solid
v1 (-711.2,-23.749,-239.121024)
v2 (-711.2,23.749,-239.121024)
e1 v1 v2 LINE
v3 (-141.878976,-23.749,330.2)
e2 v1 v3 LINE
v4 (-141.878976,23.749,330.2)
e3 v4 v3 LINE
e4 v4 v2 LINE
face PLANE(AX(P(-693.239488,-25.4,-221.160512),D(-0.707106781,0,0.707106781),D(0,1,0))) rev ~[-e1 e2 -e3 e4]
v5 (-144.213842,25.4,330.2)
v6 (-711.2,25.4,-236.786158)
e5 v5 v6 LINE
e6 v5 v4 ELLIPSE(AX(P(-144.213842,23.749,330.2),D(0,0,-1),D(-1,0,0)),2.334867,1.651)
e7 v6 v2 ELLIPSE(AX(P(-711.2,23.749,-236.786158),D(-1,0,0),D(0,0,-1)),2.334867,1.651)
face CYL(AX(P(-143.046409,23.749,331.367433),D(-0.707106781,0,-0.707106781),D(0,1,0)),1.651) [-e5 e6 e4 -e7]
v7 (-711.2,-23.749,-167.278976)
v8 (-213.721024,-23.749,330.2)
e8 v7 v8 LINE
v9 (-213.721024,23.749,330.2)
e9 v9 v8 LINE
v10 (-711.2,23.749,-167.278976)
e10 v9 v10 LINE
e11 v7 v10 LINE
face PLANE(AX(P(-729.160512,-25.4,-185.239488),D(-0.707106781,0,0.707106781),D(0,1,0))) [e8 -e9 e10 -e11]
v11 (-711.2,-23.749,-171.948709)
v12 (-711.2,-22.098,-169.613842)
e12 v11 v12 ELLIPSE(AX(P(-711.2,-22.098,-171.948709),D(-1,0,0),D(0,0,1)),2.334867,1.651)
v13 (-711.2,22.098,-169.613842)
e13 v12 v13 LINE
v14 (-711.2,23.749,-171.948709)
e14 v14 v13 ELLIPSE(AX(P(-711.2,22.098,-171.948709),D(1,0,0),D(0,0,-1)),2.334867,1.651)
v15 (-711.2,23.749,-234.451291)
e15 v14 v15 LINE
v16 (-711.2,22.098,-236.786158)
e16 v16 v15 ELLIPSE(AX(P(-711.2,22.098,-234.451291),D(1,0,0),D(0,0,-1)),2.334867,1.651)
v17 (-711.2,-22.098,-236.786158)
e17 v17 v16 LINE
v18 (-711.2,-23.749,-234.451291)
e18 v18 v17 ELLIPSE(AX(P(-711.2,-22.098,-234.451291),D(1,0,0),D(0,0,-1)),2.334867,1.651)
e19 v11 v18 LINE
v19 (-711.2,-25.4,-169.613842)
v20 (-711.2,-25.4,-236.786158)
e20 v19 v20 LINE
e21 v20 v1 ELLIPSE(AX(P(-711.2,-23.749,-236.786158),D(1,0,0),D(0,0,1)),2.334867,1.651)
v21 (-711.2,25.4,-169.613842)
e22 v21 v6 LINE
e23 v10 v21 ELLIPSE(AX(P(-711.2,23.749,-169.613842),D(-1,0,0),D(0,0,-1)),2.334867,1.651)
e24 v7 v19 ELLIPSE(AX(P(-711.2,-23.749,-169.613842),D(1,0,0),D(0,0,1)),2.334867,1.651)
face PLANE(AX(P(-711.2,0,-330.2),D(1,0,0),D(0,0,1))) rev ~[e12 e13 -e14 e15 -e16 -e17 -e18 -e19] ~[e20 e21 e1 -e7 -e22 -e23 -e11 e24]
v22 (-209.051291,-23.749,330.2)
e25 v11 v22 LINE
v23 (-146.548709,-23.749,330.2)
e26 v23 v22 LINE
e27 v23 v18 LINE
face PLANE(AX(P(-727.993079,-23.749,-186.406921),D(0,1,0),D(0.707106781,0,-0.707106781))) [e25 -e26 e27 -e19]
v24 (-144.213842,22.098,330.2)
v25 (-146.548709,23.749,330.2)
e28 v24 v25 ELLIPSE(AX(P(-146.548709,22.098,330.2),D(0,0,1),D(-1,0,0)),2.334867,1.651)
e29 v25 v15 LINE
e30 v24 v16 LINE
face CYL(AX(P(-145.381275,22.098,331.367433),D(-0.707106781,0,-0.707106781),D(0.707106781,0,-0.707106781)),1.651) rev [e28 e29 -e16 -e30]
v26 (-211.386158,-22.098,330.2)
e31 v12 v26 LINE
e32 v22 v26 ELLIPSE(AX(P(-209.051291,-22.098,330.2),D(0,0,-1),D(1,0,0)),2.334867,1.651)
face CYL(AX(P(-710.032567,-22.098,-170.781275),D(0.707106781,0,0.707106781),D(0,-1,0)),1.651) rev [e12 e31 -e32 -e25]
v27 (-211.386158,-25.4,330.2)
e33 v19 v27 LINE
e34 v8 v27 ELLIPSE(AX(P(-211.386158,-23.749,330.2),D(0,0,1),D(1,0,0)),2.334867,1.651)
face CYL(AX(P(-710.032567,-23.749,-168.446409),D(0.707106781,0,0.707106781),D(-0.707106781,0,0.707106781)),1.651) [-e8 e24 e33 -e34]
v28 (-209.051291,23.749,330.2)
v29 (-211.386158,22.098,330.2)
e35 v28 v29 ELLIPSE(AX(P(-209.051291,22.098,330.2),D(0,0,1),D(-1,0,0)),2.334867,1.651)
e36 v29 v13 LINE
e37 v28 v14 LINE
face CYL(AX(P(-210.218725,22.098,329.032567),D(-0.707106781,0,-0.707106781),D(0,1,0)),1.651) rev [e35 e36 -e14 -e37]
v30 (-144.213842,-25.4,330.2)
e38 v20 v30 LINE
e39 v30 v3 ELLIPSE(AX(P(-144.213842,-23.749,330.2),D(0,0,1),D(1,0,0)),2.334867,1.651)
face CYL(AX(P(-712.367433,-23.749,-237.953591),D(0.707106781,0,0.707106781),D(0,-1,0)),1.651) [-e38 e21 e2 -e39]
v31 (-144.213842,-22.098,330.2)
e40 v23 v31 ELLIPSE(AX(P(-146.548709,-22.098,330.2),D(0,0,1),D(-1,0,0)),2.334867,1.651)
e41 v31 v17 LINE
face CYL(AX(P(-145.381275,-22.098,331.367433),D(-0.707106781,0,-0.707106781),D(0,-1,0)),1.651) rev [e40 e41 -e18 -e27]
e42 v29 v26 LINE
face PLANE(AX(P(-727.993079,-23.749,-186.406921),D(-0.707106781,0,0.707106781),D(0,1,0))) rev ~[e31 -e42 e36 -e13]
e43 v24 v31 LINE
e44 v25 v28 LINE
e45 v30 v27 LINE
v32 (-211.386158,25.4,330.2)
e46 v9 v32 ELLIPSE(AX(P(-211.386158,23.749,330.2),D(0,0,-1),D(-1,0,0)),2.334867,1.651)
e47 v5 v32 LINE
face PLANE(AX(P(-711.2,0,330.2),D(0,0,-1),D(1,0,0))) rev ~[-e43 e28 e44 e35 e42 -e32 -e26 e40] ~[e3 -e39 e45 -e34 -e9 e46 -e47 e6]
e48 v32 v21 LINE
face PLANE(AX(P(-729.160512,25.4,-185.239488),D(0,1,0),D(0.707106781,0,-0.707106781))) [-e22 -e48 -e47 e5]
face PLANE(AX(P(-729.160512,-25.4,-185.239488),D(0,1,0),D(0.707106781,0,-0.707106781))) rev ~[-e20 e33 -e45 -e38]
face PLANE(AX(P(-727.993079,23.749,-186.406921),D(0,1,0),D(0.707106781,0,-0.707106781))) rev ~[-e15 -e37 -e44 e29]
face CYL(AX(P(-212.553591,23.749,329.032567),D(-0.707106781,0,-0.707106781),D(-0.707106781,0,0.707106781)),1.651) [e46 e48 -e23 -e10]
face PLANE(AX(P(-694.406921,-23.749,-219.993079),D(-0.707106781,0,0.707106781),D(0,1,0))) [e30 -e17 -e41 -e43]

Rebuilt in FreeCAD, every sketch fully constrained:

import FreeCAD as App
import Part
import Sketcher
from FreeCAD import Vector
Q = App.Units.Quantity


def edges_at(feature, points):
    """Names of the edges that pass closest to the given points."""
    edges = feature.Shape.Edges
    near = lambda p: min(range(len(edges)), key=lambda i: edges[i].distToShape(Part.Vertex(*p))[0])
    return sorted({f"Edge{near(p) + 1}" for p in points})

doc = App.newDocument("Part")
body = doc.addObject("PartDesign::Body", "Body")

sketch1 = body.newObject("Sketcher::SketchObject", "Sketch")
sketch1.Placement = App.Placement(Vector(-457.2, 0, -457.2), App.Rotation(Vector(0.707106781, 0, -0.707106781), Vector(0, 0.999999999, 0), Vector(0.707106781, 0, 0.707106781), "ZXY"))
sketch1.addGeometry([
    Part.LineSegment(Vector(-385, 25, 0), Vector(-385, -25, 0)),
    Part.LineSegment(Vector(-385, -25, 0), Vector(-334, -25, 0)),
    Part.LineSegment(Vector(-334, -25, 0), Vector(-334, 25, 0)),
    Part.LineSegment(Vector(-334, 25, 0), Vector(-385, 25, 0)),
    Part.LineSegment(Vector(-335, -24, 0), Vector(-383, -24, 0)),
    Part.LineSegment(Vector(-383, -24, 0), Vector(-383, 24, 0)),
    Part.LineSegment(Vector(-383, 24, 0), Vector(-335, 24, 0)),
    Part.LineSegment(Vector(-335, 24, 0), Vector(-335, -24, 0)),
], False)
sketch1.addConstraint([
    Sketcher.Constraint("Coincident", 0, 2, 1, 1),
    Sketcher.Constraint("Coincident", 1, 2, 2, 1),
    Sketcher.Constraint("Coincident", 2, 2, 3, 1),
    Sketcher.Constraint("Coincident", 3, 2, 0, 1),
    Sketcher.Constraint("Coincident", 4, 2, 5, 1),
    Sketcher.Constraint("Coincident", 5, 2, 6, 1),
    Sketcher.Constraint("Coincident", 6, 2, 7, 1),
    Sketcher.Constraint("Coincident", 7, 2, 4, 1),
    Sketcher.Constraint("Vertical", 0),
    Sketcher.Constraint("Horizontal", 1),
    Sketcher.Constraint("Vertical", 2),
    Sketcher.Constraint("Horizontal", 3),
    Sketcher.Constraint("Horizontal", 4),
    Sketcher.Constraint("Vertical", 5),
    Sketcher.Constraint("Horizontal", 6),
    Sketcher.Constraint("Vertical", 7),
    Sketcher.Constraint("Equal", 3, 0),
    Sketcher.Constraint("Equal", 6, 5),
    Sketcher.Constraint("DistanceX", 1, 1, 1, 2, Q("2 in")),
    Sketcher.Constraint("DistanceY", 0, 2, -1, 1, Q("1 in")),
    Sketcher.Constraint("DistanceX", 4, 2, 4, 1, Q("1.87 in")),
    Sketcher.Constraint("DistanceY", 4, 2, -1, 1, Q("0.935 in")),
    Sketcher.Constraint("DistanceX", 0, 2, 4, 2, Q("0.065 in")),
    Sketcher.Constraint("DistanceX", 0, 2, -1, 1, Q("384.610245 mm")),
])
pad1 = body.newObject("PartDesign::Pad", "Pad")
pad1.Profile = sketch1
pad1.Type = "TwoLengths"
pad1.Length = Q("1 in")
pad1.Length2 = Q("31 in")
pad1.Reversed = True

sketch2 = body.newObject("Sketcher::SketchObject", "Sketch001")
sketch2.AttachmentSupport = (doc.getObject("XZ_Plane"), [""])
sketch2.MapMode = "FlatFace"
sketch2.addGeometry([
    Part.LineSegment(Vector(-762, 381, 0), Vector(-762, -381, 0)),
    Part.LineSegment(Vector(-762, -381, 0), Vector(762, -381, 0)),
    Part.LineSegment(Vector(762, -381, 0), Vector(762, 381, 0)),
    Part.LineSegment(Vector(762, 381, 0), Vector(-762, 381, 0)),
    Part.LineSegment(Vector(711, -330, 0), Vector(-711, -330, 0)),
    Part.LineSegment(Vector(-711, -330, 0), Vector(-711, 330, 0)),
    Part.LineSegment(Vector(-711, 330, 0), Vector(711, 330, 0)),
    Part.LineSegment(Vector(711, 330, 0), Vector(711, -330, 0)),
], False)
sketch2.addConstraint([
    Sketcher.Constraint("Coincident", 0, 2, 1, 1),
    Sketcher.Constraint("Coincident", 1, 2, 2, 1),
    Sketcher.Constraint("Coincident", 2, 2, 3, 1),
    Sketcher.Constraint("Coincident", 3, 2, 0, 1),
    Sketcher.Constraint("Coincident", 4, 2, 5, 1),
    Sketcher.Constraint("Coincident", 5, 2, 6, 1),
    Sketcher.Constraint("Coincident", 6, 2, 7, 1),
    Sketcher.Constraint("Coincident", 7, 2, 4, 1),
    Sketcher.Constraint("Vertical", 0),
    Sketcher.Constraint("Horizontal", 1),
    Sketcher.Constraint("Vertical", 2),
    Sketcher.Constraint("Horizontal", 3),
    Sketcher.Constraint("Horizontal", 4),
    Sketcher.Constraint("Vertical", 5),
    Sketcher.Constraint("Horizontal", 6),
    Sketcher.Constraint("Vertical", 7),
    Sketcher.Constraint("Symmetric", 0, 2, 2, 2, -1, 1),
    Sketcher.Constraint("Symmetric", 4, 2, 6, 2, -1, 1),
    Sketcher.Constraint("DistanceX", 1, 1, 1, 2, Q("60 in")),
    Sketcher.Constraint("DistanceX", 4, 2, 4, 1, Q("56 in")),
    Sketcher.Constraint("DistanceY", 0, 2, 0, 1, Q("30 in")),
    Sketcher.Constraint("DistanceY", 5, 1, 5, 2, Q("26 in")),
])
pocket1 = body.newObject("PartDesign::Pocket", "Pocket")
pocket1.Profile = sketch2
pocket1.Length = Q("5 in")
pocket1.Midplane = True
doc.recompute()

fillet = body.newObject("PartDesign::Fillet", "Fillet")
fillet.Base = (pocket1, edges_at(pocket1, [
    (-462.461, -25.4, 81.461),
    (-462.461, 25.4, 81.461),
    (-426.539, 25.4, 45.539),
    (-426.539, -25.4, 45.539),
]))
fillet.Radius = Q("0.065 in")
doc.recompute()

fillet2 = body.newObject("PartDesign::Fillet", "Fillet001")
fillet2.Base = (fillet, edges_at(fillet, [
    (-427.707, 23.749, 46.707),
    (-427.707, -23.749, 46.707),
    (-461.293, -23.749, 80.293),
    (-461.293, 23.749, 80.293),
]))
fillet2.Radius = Q("0.065 in")

doc.recompute()
